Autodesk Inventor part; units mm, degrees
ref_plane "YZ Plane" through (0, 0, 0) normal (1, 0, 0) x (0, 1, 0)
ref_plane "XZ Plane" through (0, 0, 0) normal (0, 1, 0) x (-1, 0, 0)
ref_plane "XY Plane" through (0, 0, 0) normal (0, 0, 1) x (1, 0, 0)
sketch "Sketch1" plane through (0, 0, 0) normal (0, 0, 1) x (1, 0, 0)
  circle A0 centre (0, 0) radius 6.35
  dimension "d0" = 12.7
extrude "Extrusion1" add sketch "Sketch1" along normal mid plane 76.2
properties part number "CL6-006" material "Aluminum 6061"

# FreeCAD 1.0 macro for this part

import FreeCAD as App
import Part
import Sketcher
Q = App.Units.Quantity

doc = App.newDocument("Part")
params = doc.addObject("Spreadsheet::Sheet", "Params")
for row, (alias, value) in enumerate([
    ("sketch1_diameter", "0.5 in"),
    ("pad1_length", "3 in"),
], start=1):
    params.set(f"A{row}", alias)
    params.set(f"B{row}", "=" + value)
    params.setAlias(f"B{row}", alias)

body = doc.addObject("PartDesign::Body", "Body")

# Sketch on XY plane
sketch1 = doc.addObject("Sketcher::SketchObject", "Sketch")
body.addObject(sketch1)
sketch1.AttachmentSupport = (doc.XY_Plane, [""])
sketch1.MapMode = "FlatFace"
sketch1.addGeometry(Part.Circle(App.Vector(0, 0, 0), App.Vector(0, 0, 1), 6), False)
sketch1.addConstraint([
    Sketcher.Constraint("Coincident", 0, 3, -1, 1),
    Sketcher.Constraint("Diameter", 0, Q("0.5 in")),
])
sketch1.setExpression("Constraints[1]", "Params.sketch1_diameter")
pad1 = doc.addObject("PartDesign::Pad", "Pad")
body.addObject(pad1)
pad1.Profile = sketch1
pad1.setExpression("Length", "Params.pad1_length")
pad1.Midplane = True

doc.recompute()
